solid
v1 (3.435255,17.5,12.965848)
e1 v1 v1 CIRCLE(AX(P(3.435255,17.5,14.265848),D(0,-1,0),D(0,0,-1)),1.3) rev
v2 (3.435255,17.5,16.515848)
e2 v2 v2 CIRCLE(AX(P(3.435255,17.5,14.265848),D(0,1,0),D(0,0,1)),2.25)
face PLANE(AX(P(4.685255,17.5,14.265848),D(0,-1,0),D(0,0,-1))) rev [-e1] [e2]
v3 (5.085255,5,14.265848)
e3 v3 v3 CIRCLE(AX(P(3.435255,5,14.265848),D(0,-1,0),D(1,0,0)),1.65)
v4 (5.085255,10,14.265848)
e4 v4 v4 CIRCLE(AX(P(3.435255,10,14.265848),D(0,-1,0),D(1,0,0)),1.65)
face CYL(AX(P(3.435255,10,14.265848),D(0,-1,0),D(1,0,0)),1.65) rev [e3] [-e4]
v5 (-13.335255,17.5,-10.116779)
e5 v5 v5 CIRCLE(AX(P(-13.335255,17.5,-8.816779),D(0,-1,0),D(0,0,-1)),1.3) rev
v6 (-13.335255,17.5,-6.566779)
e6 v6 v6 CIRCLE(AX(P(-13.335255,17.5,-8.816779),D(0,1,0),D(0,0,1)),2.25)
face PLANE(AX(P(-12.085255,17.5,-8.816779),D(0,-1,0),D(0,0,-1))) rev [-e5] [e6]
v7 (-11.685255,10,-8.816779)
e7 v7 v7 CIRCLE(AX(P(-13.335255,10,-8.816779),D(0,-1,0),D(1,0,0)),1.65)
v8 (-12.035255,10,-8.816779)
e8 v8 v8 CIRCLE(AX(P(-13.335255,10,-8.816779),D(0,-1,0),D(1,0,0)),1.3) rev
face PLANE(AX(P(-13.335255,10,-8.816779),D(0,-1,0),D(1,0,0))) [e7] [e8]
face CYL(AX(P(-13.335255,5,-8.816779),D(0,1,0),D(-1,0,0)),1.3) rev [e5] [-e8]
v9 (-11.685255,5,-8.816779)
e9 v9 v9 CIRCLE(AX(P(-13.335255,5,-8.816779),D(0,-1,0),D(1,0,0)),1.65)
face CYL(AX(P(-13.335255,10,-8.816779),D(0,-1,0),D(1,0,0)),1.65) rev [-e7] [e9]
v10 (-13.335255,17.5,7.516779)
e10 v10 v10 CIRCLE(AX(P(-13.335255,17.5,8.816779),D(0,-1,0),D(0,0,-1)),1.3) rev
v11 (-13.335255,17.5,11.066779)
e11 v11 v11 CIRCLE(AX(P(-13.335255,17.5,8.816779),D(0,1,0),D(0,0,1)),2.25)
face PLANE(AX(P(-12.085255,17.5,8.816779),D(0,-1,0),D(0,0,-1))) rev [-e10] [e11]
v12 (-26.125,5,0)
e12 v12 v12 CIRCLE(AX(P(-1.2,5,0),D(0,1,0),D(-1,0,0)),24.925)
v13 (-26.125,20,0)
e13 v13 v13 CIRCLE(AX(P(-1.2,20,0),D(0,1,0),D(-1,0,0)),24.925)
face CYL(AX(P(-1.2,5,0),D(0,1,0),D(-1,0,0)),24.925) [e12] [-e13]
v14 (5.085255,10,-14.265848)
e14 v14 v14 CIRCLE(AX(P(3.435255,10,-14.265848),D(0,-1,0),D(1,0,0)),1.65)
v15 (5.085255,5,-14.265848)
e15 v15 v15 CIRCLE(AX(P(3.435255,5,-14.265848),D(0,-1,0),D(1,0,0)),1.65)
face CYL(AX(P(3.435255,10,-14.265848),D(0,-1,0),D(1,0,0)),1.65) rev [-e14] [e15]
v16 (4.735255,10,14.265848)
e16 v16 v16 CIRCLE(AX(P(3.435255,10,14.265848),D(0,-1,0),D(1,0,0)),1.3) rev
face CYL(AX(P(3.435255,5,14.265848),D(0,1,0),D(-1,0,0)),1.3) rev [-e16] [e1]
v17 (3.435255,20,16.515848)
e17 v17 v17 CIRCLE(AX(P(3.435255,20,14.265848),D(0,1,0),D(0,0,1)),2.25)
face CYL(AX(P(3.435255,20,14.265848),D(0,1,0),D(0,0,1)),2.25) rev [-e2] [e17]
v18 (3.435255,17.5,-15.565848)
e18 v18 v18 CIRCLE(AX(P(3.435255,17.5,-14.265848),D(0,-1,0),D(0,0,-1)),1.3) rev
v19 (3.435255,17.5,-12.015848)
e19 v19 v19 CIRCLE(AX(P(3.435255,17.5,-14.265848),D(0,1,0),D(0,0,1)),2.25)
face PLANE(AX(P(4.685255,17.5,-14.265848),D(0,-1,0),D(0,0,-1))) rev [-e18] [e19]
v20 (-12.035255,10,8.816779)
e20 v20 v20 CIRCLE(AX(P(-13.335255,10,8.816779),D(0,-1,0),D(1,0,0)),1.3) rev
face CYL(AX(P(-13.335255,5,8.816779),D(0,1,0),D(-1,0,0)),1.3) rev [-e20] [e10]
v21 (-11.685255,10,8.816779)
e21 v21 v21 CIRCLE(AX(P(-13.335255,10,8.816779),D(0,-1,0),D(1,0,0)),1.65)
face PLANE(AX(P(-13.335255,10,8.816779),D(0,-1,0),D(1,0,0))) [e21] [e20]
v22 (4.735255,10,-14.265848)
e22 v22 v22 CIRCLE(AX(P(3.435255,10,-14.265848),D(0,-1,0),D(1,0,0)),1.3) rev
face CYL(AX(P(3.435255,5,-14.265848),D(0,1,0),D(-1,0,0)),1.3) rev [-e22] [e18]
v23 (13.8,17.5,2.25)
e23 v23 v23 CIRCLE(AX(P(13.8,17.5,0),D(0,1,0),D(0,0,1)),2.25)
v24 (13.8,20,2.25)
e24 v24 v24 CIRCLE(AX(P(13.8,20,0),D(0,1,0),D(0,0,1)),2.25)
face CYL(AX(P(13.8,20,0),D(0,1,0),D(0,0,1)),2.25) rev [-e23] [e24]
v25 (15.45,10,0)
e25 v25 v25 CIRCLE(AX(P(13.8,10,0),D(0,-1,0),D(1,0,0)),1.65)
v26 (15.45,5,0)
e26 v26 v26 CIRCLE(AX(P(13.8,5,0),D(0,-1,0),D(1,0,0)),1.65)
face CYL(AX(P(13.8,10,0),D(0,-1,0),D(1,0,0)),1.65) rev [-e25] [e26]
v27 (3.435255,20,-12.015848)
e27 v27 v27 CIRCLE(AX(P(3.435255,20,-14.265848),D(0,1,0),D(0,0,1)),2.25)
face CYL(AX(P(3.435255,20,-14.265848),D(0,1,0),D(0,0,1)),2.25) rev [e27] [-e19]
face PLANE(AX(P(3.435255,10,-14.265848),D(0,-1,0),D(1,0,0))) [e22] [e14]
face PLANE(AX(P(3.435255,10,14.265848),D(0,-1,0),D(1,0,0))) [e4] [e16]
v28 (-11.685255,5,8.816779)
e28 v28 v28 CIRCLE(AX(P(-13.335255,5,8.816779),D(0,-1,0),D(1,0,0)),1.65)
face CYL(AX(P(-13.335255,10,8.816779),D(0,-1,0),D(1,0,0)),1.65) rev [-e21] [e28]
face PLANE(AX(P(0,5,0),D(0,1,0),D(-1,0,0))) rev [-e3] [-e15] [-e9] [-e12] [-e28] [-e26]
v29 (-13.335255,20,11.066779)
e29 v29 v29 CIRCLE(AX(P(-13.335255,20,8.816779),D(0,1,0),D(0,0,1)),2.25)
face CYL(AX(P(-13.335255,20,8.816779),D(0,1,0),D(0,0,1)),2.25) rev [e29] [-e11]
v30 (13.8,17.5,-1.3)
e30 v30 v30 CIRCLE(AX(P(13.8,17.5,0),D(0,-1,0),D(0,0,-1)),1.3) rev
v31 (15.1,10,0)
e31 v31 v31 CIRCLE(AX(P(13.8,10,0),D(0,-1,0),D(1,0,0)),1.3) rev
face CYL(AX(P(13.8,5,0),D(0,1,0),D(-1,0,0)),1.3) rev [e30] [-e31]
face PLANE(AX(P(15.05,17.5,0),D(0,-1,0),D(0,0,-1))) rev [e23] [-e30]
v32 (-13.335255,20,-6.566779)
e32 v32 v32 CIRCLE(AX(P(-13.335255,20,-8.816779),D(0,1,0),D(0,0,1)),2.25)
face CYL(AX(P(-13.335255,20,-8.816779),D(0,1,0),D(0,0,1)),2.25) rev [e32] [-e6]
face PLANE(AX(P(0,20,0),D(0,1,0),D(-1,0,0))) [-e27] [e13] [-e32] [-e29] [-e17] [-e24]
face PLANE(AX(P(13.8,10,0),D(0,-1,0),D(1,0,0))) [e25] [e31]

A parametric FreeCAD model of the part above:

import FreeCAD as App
import Part
import Sketcher

V = App.Vector

doc = App.newDocument("Part")
body = doc.addObject("PartDesign::Body", "Body")

# Sketch on XZ plane
sketch1 = doc.addObject("Sketcher::SketchObject", "Sketch")
body.addObject(sketch1)
sketch1.AttachmentSupport = (doc.XZ_Plane, [""])
sketch1.MapMode = "FlatFace"
sketch1.AttachmentOffset = App.Placement(V(0, 0, -15), App.Rotation())
sketch1.addGeometry(Part.Circle(V(-1.2, 0, 0), V(0, 0, 1), 24.9), False)
sketch1.addGeometry(Part.Circle(V(3.4, -14.3, 0), V(0, 0, 1), 1.3), False)
sketch1.addGeometry(Part.Circle(V(13.8, 0, 0), V(0, 0, 1), 1.3), False)
sketch1.addGeometry(Part.Circle(V(-13.3, -8.8, 0), V(0, 0, 1), 1.3), False)
sketch1.addGeometry(Part.Circle(V(3.4, 14.3, 0), V(0, 0, 1), 1.3), False)
sketch1.addGeometry(Part.Circle(V(-13.3, 8.8, 0), V(0, 0, 1), 1.3), False)
sketch1.addConstraint(Sketcher.Constraint("Equal", 1, 2))
sketch1.addConstraint(Sketcher.Constraint("Equal", 2, 3))
sketch1.addConstraint(Sketcher.Constraint("Equal", 3, 4))
sketch1.addConstraint(Sketcher.Constraint("Equal", 4, 5))
sketch1.addConstraint(Sketcher.Constraint("Symmetric", 1, 3, 4, 3, -1))
sketch1.addConstraint(Sketcher.Constraint("Symmetric", 3, 3, 5, 3, -1))
sketch1.addConstraint(Sketcher.Constraint("PointOnObject", 0, 3, -1))
sketch1.addConstraint(Sketcher.Constraint("PointOnObject", 2, 3, -1))
sketch1.addConstraint(Sketcher.Constraint("Diameter", 1, 2.6))
sketch1.addConstraint(Sketcher.Constraint("Diameter", 0, 49.85))
sketch1.addConstraint(Sketcher.Constraint("DistanceX", 0, 3, 2, 3, 15.0))
sketch1.addConstraint(Sketcher.Constraint("DistanceX", 0, 3, -1, 1, 1.2))
sketch1.addConstraint(Sketcher.Constraint("DistanceY", 3, 3, -1, 1, 8.816779))
sketch1.addConstraint(Sketcher.Constraint("DistanceX", 3, 3, 1, 3, 16.77051))
sketch1.addConstraint(Sketcher.Constraint("DistanceY", 1, 3, 3, 3, 5.449069))
sketch1.addConstraint(Sketcher.Constraint("DistanceX", -1, 1, 1, 3, 3.435255))
pad1 = doc.addObject("PartDesign::Pad", "Pad")
body.addObject(pad1)
pad1.Profile = sketch1
pad1.Type = "TwoLengths"
pad1.Length = 5
pad1.Length2 = 10
pad1.Reversed = True

# Sketch on XZ plane
sketch2 = doc.addObject("Sketcher::SketchObject", "Sketch001")
body.addObject(sketch2)
sketch2.AttachmentSupport = (doc.XZ_Plane, [""])
sketch2.MapMode = "FlatFace"
sketch2.AttachmentOffset = App.Placement(V(0, 0, -5), App.Rotation())
sketch2.addGeometry(Part.Circle(V(13.8, 0, 0), V(0, 0, 1), 1.6), False)
sketch2.addGeometry(Part.Circle(V(3.4, -14.3, 0), V(0, 0, 1), 1.6), False)
sketch2.addGeometry(Part.Circle(V(-13.3, -8.8, 0), V(0, 0, 1), 1.6), False)
sketch2.addGeometry(Part.Circle(V(-13.3, 8.8, 0), V(0, 0, 1), 1.6), False)
sketch2.addGeometry(Part.Circle(V(3.4, 14.3, 0), V(0, 0, 1), 1.6), False)
sketch2.addConstraint(Sketcher.Constraint("Equal", 0, 1))
sketch2.addConstraint(Sketcher.Constraint("Equal", 1, 2))
sketch2.addConstraint(Sketcher.Constraint("Equal", 2, 3))
sketch2.addConstraint(Sketcher.Constraint("Equal", 3, 4))
sketch2.addConstraint(Sketcher.Constraint("Symmetric", 2, 3, 3, 3, -1))
sketch2.addConstraint(Sketcher.Constraint("Symmetric", 1, 3, 4, 3, -1))
sketch2.addConstraint(Sketcher.Constraint("PointOnObject", 0, 3, -1))
sketch2.addConstraint(Sketcher.Constraint("Diameter", 0, 3.3))
sketch2.addConstraint(Sketcher.Constraint("DistanceX", -1, 1, 0, 3, 13.8))
sketch2.addConstraint(Sketcher.Constraint("DistanceY", 2, 3, -1, 1, 8.816779))
sketch2.addConstraint(Sketcher.Constraint("DistanceX", 2, 3, 1, 3, 16.77051))
sketch2.addConstraint(Sketcher.Constraint("DistanceY", 1, 3, 2, 3, 5.449069))
sketch2.addConstraint(Sketcher.Constraint("DistanceX", -1, 1, 1, 3, 3.435255))
pocket1 = doc.addObject("PartDesign::Pocket", "Pocket")
body.addObject(pocket1)
pocket1.Profile = sketch2
pocket1.Length = 5

# Sketch on XZ plane
sketch3 = doc.addObject("Sketcher::SketchObject", "Sketch002")
body.addObject(sketch3)
sketch3.AttachmentSupport = (doc.XZ_Plane, [""])
sketch3.MapMode = "FlatFace"
sketch3.AttachmentOffset = App.Placement(V(0, 0, -20), App.Rotation())
sketch3.addGeometry(Part.Circle(V(13.8, 0, 0), V(0, 0, 1), 1.2), False)
sketch3.addGeometry(Part.Circle(V(3.4, 14.3, 0), V(0, 0, 1), 1.2), False)
sketch3.addGeometry(Part.Circle(V(-13.3, 8.8, 0), V(0, 0, 1), 1.2), False)
sketch3.addGeometry(Part.Circle(V(3.4, -14.3, 0), V(0, 0, 1), 1.2), False)
sketch3.addGeometry(Part.Circle(V(-13.3, -8.8, 0), V(0, 0, 1), 1.2), False)
sketch3.addConstraint(Sketcher.Constraint("Equal", 0, 1))
sketch3.addConstraint(Sketcher.Constraint("Equal", 1, 2))
sketch3.addConstraint(Sketcher.Constraint("Equal", 2, 3))
sketch3.addConstraint(Sketcher.Constraint("Equal", 3, 4))
sketch3.addConstraint(Sketcher.Constraint("Symmetric", 1, 3, 3, 3, -1))
sketch3.addConstraint(Sketcher.Constraint("Symmetric", 2, 3, 4, 3, -1))
sketch3.addConstraint(Sketcher.Constraint("PointOnObject", 0, 3, -1))
sketch3.addConstraint(Sketcher.Constraint("Diameter", 0, 2.5))
sketch3.addConstraint(Sketcher.Constraint("DistanceX", -1, 1, 0, 3, 13.8))
sketch3.addConstraint(Sketcher.Constraint("DistanceY", -1, 1, 2, 3, 8.816779))
sketch3.addConstraint(Sketcher.Constraint("DistanceX", 2, 3, 1, 3, 16.77051))
sketch3.addConstraint(Sketcher.Constraint("DistanceY", 2, 3, 1, 3, 5.449069))
sketch3.addConstraint(Sketcher.Constraint("DistanceX", -1, 1, 1, 3, 3.435255))
doc.recompute()
hole = doc.addObject("PartDesign::Hole", "Hole")
body.addObject(hole)
hole.Profile = sketch3
hole.ThreadType = "None"
hole.Diameter = 2.5
hole.DepthType = "ThroughAll"
hole.HoleCutType = "Counterbore"
hole.HoleCutDiameter = 4.5
hole.HoleCutDepth = 2.5
hole.Reversed = True

doc.recompute()
